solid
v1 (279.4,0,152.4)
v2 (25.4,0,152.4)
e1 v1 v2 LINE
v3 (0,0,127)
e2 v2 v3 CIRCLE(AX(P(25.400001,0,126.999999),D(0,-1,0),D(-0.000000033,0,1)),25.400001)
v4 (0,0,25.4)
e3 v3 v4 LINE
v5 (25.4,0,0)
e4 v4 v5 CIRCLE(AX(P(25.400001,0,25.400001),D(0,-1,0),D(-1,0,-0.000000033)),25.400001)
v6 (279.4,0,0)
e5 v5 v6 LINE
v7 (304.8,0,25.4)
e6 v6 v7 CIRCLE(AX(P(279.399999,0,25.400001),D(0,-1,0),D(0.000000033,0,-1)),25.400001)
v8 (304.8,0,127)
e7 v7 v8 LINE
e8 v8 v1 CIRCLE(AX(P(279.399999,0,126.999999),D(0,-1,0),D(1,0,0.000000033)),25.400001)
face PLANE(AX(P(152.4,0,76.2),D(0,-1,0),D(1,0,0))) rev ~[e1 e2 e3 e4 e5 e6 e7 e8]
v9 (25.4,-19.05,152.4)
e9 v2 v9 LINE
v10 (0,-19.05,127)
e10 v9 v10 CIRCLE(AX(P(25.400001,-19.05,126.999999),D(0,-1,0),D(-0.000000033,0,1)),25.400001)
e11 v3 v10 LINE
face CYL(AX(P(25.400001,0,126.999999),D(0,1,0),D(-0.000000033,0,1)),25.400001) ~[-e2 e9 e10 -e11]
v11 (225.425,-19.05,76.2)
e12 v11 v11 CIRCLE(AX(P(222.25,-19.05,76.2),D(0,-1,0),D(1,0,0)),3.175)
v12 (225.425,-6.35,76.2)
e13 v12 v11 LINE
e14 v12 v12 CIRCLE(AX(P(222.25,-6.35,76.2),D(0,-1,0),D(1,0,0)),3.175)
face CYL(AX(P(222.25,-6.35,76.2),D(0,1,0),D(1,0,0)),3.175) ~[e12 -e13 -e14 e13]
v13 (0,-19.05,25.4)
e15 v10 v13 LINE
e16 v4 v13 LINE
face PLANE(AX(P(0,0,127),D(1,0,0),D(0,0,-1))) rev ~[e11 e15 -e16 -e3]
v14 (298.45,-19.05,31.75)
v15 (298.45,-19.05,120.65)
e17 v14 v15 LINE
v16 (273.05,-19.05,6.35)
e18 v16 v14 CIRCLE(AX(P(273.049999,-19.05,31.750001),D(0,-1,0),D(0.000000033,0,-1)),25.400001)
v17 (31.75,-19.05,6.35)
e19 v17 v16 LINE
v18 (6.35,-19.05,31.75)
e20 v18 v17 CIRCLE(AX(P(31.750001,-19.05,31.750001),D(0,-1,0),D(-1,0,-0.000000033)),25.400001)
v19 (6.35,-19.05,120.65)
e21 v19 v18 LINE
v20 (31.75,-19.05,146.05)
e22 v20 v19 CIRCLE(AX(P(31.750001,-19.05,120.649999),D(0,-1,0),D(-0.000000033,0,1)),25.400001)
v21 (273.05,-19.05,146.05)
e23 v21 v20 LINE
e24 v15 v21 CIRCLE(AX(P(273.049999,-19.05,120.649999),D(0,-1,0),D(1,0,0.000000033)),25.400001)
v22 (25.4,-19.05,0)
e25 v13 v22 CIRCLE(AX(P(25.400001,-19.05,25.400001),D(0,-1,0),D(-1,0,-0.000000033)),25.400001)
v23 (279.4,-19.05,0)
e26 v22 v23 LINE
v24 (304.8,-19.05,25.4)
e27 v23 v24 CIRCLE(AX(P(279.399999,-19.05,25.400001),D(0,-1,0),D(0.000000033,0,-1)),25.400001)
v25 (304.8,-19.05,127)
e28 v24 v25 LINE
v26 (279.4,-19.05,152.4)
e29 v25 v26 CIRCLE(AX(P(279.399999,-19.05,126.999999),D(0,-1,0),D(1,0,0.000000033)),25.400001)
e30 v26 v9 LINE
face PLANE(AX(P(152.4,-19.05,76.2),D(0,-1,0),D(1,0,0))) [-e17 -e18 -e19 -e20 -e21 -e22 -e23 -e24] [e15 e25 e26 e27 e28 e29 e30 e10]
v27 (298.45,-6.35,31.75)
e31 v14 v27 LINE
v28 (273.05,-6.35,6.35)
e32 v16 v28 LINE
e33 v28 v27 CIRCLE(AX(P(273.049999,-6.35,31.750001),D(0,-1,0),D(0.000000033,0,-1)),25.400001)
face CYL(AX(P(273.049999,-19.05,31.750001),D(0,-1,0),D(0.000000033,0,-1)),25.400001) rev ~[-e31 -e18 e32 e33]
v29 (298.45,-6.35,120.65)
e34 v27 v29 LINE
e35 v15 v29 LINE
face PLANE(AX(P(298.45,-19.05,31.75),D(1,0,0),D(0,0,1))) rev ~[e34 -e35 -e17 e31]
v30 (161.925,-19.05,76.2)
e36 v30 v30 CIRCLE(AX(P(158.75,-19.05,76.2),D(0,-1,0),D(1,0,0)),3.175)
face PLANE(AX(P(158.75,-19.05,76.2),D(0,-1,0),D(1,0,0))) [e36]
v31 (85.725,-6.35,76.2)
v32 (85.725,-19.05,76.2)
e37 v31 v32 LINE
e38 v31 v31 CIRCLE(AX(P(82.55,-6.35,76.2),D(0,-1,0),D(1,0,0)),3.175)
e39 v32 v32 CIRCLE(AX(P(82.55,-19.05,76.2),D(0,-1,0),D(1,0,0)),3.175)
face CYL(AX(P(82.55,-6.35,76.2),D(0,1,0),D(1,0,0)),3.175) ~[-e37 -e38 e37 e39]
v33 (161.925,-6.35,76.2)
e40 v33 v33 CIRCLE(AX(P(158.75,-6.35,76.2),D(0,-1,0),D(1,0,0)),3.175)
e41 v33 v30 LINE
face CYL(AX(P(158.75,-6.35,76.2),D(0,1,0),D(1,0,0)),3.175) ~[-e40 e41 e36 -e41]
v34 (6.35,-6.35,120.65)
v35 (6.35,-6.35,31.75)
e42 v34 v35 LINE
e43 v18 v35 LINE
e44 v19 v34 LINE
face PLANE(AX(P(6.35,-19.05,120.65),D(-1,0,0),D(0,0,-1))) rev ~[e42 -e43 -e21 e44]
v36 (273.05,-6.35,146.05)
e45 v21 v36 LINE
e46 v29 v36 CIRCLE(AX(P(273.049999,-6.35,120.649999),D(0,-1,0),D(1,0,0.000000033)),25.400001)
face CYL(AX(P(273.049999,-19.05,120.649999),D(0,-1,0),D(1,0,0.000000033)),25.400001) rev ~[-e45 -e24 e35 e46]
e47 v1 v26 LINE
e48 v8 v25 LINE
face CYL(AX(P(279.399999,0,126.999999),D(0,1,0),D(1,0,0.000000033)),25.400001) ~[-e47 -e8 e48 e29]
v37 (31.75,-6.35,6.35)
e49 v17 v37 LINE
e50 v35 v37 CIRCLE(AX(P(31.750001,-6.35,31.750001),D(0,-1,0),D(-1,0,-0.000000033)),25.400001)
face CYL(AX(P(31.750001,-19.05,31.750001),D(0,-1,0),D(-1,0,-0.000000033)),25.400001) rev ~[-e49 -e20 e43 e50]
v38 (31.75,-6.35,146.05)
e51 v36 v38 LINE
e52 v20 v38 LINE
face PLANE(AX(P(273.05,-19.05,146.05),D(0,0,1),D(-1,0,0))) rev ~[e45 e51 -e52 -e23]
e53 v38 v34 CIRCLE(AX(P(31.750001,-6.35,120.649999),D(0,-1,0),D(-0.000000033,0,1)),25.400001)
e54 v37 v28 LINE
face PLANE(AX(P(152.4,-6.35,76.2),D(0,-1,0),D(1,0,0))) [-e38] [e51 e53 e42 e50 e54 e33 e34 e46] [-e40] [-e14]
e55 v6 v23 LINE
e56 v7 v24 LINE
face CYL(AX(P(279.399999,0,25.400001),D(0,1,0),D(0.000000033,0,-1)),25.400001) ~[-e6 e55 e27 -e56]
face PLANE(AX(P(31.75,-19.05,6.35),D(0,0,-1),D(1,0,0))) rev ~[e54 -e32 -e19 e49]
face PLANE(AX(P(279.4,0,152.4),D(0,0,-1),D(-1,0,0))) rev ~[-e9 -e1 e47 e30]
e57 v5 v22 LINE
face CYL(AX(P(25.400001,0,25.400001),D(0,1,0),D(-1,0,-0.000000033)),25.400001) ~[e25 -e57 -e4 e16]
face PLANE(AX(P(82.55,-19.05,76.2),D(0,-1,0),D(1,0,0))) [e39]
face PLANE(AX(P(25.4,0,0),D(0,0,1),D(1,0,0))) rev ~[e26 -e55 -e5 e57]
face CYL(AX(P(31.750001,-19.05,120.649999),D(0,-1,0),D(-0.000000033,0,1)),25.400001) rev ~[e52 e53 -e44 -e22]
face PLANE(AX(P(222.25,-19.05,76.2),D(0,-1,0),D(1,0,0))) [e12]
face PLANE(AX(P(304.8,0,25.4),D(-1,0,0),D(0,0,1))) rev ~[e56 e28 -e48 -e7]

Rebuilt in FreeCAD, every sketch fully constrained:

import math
import FreeCAD as App
import Part
import Sketcher

V = App.Vector
Q = App.Units.Quantity

doc = App.newDocument("Part")
body = doc.addObject("PartDesign::Body", "Body")

# Sketch on XZ plane
sketch1 = body.newObject("Sketcher::SketchObject", "Sketch")
sketch1.AttachmentSupport = (doc.getObject("XZ_Plane"), [""])
sketch1.MapMode = "FlatFace"
sketch1.addGeometry([
    Part.LineSegment(V(0, 127, 0), V(0, 25.4, 0)),  # 0
    Part.ArcOfCircle(Part.Circle(V(25.400001, 25.400001, 0), V(0, 0, 1), 25.400001), math.radians(-179.999998), math.radians(-90.000002)),  # 1
    Part.LineSegment(V(25.4, 0, 0), V(279.4, 0, 0)),  # 2
    Part.ArcOfCircle(Part.Circle(V(279.399999, 25.400001, 0), V(0, 0, 1), 25.400001), math.radians(-89.999998), math.radians(-0.000002)),  # 3
    Part.LineSegment(V(304.8, 25.4, 0), V(304.8, 127, 0)),  # 4
    Part.ArcOfCircle(Part.Circle(V(279.399999, 126.999999, 0), V(0, 0, 1), 25.400001), math.radians(0.000002), math.radians(89.999998)),  # 5
    Part.LineSegment(V(279.4, 152.4, 0), V(25.4, 152.4, 0)),  # 6
    Part.ArcOfCircle(Part.Circle(V(25.400001, 126.999999, 0), V(0, 0, 1), 25.400001), math.radians(90.000002), math.radians(179.999998)),  # 7
], False)
sketch1.addConstraint([
    Sketcher.Constraint("Tangent", 0, 2, 1, 1),
    Sketcher.Constraint("Tangent", 1, 2, 2, 1),
    Sketcher.Constraint("Tangent", 2, 2, 3, 1),
    Sketcher.Constraint("Tangent", 3, 2, 4, 1),
    Sketcher.Constraint("Tangent", 4, 2, 5, 1),
    Sketcher.Constraint("Tangent", 5, 2, 6, 1),
    Sketcher.Constraint("Tangent", 6, 2, 7, 1),
    Sketcher.Constraint("Tangent", 7, 2, 0, 1),
    Sketcher.Constraint("Vertical", 0),
    Sketcher.Constraint("Horizontal", 2),
    Sketcher.Constraint("Vertical", 4),
    Sketcher.Constraint("Horizontal", 6),
    Sketcher.Constraint("Equal", 1, 3),
    Sketcher.Constraint("Equal", 3, 5),
    Sketcher.Constraint("Equal", 5, 7),
    Sketcher.Constraint("PointOnObject", 0, 2, -2),
    Sketcher.Constraint("PointOnObject", 1, 2, -1),
    Sketcher.Constraint("Radius", 1, Q("1 in")),
    Sketcher.Constraint("DistanceX", 2, 1, 2, 2, Q("10 in")),
    Sketcher.Constraint("DistanceY", 0, 2, 0, 1, Q("4 in")),
])
pad1 = body.newObject("PartDesign::Pad", "Pad")
pad1.Profile = sketch1
pad1.Length = Q("0.75 in")

# Sketch on XZ plane
sketch2 = body.newObject("Sketcher::SketchObject", "Sketch001")
sketch2.AttachmentSupport = (doc.getObject("XZ_Plane"), [""])
sketch2.MapMode = "FlatFace"
sketch2.AttachmentOffset = App.Placement(V(0, 0, 0.75 * 25.4), App.Rotation())
sketch2.addGeometry([
    Part.ArcOfCircle(Part.Circle(V(31.750001, 31.750001, 0), V(0, 0, 1), 25.400001), math.radians(-179.999998), math.radians(-90.000002)),  # 0
    Part.LineSegment(V(31.75, 6.35, 0), V(273.05, 6.35, 0)),  # 1
    Part.ArcOfCircle(Part.Circle(V(273.049999, 31.750001, 0), V(0, 0, 1), 25.400001), math.radians(-89.999998), math.radians(-0.000002)),  # 2
    Part.LineSegment(V(298.45, 31.75, 0), V(298.45, 120.65, 0)),  # 3
    Part.ArcOfCircle(Part.Circle(V(273.049999, 120.649999, 0), V(0, 0, 1), 25.400001), math.radians(0.000002), math.radians(89.999998)),  # 4
    Part.LineSegment(V(273.05, 146.05, 0), V(31.75, 146.05, 0)),  # 5
    Part.ArcOfCircle(Part.Circle(V(31.750001, 120.649999, 0), V(0, 0, 1), 25.400001), math.radians(90.000002), math.radians(179.999998)),  # 6
    Part.LineSegment(V(6.35, 120.65, 0), V(6.35, 31.75, 0)),  # 7
], False)
sketch2.addConstraint([
    Sketcher.Constraint("Tangent", 0, 2, 1, 1),
    Sketcher.Constraint("Tangent", 1, 2, 2, 1),
    Sketcher.Constraint("Tangent", 2, 2, 3, 1),
    Sketcher.Constraint("Tangent", 3, 2, 4, 1),
    Sketcher.Constraint("Tangent", 4, 2, 5, 1),
    Sketcher.Constraint("Tangent", 5, 2, 6, 1),
    Sketcher.Constraint("Tangent", 6, 2, 7, 1),
    Sketcher.Constraint("Tangent", 7, 2, 0, 1),
    Sketcher.Constraint("Horizontal", 1),
    Sketcher.Constraint("Vertical", 3),
    Sketcher.Constraint("Horizontal", 5),
    Sketcher.Constraint("Vertical", 7),
    Sketcher.Constraint("Equal", 0, 2),
    Sketcher.Constraint("Equal", 2, 4),
    Sketcher.Constraint("Equal", 4, 6),
    Sketcher.Constraint("Radius", 0, Q("1 in")),
    Sketcher.Constraint("DistanceX", 1, 1, 1, 2, Q("9.5 in")),
    Sketcher.Constraint("DistanceY", 3, 1, 3, 2, Q("3.5 in")),
    Sketcher.Constraint("DistanceX", -1, 1, 0, 3, Q("1.25 in")),
    Sketcher.Constraint("DistanceY", -1, 1, 0, 3, Q("1.25 in")),
])
pocket1 = body.newObject("PartDesign::Pocket", "Pocket")
pocket1.Profile = sketch2
pocket1.Length = Q("0.5 in")

# Sketch on XZ plane
sketch3 = body.newObject("Sketcher::SketchObject", "Sketch002")
sketch3.AttachmentSupport = (doc.getObject("XZ_Plane"), [""])
sketch3.MapMode = "FlatFace"
sketch3.AttachmentOffset = App.Placement(V(0, 0, 0.25 * 25.4), App.Rotation())
sketch3.addGeometry([
    Part.Circle(V(82.55, 76.2, 0), V(0, 0, 1), 3.175),
    Part.Circle(V(158.75, 76.2, 0), V(0, 0, 1), 3.175),
    Part.Circle(V(222.25, 76.2, 0), V(0, 0, 1), 3.175),
], False)
sketch3.addConstraint([
    Sketcher.Constraint("Equal", 0, 1),
    Sketcher.Constraint("Equal", 1, 2),
    Sketcher.Constraint("Horizontal", 0, 3, 1, 3),
    Sketcher.Constraint("Horizontal", 1, 3, 2, 3),
    Sketcher.Constraint("Diameter", 0, Q("0.25 in")),
    Sketcher.Constraint("DistanceY", -1, 1, 0, 3, Q("3 in")),
    Sketcher.Constraint("DistanceX", 0, 3, 1, 3, Q("3 in")),
    Sketcher.Constraint("DistanceX", 1, 3, 2, 3, Q("2.5 in")),
    Sketcher.Constraint("DistanceX", -1, 1, 0, 3, Q("3.25 in")),
])
pad2 = body.newObject("PartDesign::Pad", "Pad001")
pad2.Profile = sketch3
pad2.Length = Q("0.5 in")

doc.recompute()
